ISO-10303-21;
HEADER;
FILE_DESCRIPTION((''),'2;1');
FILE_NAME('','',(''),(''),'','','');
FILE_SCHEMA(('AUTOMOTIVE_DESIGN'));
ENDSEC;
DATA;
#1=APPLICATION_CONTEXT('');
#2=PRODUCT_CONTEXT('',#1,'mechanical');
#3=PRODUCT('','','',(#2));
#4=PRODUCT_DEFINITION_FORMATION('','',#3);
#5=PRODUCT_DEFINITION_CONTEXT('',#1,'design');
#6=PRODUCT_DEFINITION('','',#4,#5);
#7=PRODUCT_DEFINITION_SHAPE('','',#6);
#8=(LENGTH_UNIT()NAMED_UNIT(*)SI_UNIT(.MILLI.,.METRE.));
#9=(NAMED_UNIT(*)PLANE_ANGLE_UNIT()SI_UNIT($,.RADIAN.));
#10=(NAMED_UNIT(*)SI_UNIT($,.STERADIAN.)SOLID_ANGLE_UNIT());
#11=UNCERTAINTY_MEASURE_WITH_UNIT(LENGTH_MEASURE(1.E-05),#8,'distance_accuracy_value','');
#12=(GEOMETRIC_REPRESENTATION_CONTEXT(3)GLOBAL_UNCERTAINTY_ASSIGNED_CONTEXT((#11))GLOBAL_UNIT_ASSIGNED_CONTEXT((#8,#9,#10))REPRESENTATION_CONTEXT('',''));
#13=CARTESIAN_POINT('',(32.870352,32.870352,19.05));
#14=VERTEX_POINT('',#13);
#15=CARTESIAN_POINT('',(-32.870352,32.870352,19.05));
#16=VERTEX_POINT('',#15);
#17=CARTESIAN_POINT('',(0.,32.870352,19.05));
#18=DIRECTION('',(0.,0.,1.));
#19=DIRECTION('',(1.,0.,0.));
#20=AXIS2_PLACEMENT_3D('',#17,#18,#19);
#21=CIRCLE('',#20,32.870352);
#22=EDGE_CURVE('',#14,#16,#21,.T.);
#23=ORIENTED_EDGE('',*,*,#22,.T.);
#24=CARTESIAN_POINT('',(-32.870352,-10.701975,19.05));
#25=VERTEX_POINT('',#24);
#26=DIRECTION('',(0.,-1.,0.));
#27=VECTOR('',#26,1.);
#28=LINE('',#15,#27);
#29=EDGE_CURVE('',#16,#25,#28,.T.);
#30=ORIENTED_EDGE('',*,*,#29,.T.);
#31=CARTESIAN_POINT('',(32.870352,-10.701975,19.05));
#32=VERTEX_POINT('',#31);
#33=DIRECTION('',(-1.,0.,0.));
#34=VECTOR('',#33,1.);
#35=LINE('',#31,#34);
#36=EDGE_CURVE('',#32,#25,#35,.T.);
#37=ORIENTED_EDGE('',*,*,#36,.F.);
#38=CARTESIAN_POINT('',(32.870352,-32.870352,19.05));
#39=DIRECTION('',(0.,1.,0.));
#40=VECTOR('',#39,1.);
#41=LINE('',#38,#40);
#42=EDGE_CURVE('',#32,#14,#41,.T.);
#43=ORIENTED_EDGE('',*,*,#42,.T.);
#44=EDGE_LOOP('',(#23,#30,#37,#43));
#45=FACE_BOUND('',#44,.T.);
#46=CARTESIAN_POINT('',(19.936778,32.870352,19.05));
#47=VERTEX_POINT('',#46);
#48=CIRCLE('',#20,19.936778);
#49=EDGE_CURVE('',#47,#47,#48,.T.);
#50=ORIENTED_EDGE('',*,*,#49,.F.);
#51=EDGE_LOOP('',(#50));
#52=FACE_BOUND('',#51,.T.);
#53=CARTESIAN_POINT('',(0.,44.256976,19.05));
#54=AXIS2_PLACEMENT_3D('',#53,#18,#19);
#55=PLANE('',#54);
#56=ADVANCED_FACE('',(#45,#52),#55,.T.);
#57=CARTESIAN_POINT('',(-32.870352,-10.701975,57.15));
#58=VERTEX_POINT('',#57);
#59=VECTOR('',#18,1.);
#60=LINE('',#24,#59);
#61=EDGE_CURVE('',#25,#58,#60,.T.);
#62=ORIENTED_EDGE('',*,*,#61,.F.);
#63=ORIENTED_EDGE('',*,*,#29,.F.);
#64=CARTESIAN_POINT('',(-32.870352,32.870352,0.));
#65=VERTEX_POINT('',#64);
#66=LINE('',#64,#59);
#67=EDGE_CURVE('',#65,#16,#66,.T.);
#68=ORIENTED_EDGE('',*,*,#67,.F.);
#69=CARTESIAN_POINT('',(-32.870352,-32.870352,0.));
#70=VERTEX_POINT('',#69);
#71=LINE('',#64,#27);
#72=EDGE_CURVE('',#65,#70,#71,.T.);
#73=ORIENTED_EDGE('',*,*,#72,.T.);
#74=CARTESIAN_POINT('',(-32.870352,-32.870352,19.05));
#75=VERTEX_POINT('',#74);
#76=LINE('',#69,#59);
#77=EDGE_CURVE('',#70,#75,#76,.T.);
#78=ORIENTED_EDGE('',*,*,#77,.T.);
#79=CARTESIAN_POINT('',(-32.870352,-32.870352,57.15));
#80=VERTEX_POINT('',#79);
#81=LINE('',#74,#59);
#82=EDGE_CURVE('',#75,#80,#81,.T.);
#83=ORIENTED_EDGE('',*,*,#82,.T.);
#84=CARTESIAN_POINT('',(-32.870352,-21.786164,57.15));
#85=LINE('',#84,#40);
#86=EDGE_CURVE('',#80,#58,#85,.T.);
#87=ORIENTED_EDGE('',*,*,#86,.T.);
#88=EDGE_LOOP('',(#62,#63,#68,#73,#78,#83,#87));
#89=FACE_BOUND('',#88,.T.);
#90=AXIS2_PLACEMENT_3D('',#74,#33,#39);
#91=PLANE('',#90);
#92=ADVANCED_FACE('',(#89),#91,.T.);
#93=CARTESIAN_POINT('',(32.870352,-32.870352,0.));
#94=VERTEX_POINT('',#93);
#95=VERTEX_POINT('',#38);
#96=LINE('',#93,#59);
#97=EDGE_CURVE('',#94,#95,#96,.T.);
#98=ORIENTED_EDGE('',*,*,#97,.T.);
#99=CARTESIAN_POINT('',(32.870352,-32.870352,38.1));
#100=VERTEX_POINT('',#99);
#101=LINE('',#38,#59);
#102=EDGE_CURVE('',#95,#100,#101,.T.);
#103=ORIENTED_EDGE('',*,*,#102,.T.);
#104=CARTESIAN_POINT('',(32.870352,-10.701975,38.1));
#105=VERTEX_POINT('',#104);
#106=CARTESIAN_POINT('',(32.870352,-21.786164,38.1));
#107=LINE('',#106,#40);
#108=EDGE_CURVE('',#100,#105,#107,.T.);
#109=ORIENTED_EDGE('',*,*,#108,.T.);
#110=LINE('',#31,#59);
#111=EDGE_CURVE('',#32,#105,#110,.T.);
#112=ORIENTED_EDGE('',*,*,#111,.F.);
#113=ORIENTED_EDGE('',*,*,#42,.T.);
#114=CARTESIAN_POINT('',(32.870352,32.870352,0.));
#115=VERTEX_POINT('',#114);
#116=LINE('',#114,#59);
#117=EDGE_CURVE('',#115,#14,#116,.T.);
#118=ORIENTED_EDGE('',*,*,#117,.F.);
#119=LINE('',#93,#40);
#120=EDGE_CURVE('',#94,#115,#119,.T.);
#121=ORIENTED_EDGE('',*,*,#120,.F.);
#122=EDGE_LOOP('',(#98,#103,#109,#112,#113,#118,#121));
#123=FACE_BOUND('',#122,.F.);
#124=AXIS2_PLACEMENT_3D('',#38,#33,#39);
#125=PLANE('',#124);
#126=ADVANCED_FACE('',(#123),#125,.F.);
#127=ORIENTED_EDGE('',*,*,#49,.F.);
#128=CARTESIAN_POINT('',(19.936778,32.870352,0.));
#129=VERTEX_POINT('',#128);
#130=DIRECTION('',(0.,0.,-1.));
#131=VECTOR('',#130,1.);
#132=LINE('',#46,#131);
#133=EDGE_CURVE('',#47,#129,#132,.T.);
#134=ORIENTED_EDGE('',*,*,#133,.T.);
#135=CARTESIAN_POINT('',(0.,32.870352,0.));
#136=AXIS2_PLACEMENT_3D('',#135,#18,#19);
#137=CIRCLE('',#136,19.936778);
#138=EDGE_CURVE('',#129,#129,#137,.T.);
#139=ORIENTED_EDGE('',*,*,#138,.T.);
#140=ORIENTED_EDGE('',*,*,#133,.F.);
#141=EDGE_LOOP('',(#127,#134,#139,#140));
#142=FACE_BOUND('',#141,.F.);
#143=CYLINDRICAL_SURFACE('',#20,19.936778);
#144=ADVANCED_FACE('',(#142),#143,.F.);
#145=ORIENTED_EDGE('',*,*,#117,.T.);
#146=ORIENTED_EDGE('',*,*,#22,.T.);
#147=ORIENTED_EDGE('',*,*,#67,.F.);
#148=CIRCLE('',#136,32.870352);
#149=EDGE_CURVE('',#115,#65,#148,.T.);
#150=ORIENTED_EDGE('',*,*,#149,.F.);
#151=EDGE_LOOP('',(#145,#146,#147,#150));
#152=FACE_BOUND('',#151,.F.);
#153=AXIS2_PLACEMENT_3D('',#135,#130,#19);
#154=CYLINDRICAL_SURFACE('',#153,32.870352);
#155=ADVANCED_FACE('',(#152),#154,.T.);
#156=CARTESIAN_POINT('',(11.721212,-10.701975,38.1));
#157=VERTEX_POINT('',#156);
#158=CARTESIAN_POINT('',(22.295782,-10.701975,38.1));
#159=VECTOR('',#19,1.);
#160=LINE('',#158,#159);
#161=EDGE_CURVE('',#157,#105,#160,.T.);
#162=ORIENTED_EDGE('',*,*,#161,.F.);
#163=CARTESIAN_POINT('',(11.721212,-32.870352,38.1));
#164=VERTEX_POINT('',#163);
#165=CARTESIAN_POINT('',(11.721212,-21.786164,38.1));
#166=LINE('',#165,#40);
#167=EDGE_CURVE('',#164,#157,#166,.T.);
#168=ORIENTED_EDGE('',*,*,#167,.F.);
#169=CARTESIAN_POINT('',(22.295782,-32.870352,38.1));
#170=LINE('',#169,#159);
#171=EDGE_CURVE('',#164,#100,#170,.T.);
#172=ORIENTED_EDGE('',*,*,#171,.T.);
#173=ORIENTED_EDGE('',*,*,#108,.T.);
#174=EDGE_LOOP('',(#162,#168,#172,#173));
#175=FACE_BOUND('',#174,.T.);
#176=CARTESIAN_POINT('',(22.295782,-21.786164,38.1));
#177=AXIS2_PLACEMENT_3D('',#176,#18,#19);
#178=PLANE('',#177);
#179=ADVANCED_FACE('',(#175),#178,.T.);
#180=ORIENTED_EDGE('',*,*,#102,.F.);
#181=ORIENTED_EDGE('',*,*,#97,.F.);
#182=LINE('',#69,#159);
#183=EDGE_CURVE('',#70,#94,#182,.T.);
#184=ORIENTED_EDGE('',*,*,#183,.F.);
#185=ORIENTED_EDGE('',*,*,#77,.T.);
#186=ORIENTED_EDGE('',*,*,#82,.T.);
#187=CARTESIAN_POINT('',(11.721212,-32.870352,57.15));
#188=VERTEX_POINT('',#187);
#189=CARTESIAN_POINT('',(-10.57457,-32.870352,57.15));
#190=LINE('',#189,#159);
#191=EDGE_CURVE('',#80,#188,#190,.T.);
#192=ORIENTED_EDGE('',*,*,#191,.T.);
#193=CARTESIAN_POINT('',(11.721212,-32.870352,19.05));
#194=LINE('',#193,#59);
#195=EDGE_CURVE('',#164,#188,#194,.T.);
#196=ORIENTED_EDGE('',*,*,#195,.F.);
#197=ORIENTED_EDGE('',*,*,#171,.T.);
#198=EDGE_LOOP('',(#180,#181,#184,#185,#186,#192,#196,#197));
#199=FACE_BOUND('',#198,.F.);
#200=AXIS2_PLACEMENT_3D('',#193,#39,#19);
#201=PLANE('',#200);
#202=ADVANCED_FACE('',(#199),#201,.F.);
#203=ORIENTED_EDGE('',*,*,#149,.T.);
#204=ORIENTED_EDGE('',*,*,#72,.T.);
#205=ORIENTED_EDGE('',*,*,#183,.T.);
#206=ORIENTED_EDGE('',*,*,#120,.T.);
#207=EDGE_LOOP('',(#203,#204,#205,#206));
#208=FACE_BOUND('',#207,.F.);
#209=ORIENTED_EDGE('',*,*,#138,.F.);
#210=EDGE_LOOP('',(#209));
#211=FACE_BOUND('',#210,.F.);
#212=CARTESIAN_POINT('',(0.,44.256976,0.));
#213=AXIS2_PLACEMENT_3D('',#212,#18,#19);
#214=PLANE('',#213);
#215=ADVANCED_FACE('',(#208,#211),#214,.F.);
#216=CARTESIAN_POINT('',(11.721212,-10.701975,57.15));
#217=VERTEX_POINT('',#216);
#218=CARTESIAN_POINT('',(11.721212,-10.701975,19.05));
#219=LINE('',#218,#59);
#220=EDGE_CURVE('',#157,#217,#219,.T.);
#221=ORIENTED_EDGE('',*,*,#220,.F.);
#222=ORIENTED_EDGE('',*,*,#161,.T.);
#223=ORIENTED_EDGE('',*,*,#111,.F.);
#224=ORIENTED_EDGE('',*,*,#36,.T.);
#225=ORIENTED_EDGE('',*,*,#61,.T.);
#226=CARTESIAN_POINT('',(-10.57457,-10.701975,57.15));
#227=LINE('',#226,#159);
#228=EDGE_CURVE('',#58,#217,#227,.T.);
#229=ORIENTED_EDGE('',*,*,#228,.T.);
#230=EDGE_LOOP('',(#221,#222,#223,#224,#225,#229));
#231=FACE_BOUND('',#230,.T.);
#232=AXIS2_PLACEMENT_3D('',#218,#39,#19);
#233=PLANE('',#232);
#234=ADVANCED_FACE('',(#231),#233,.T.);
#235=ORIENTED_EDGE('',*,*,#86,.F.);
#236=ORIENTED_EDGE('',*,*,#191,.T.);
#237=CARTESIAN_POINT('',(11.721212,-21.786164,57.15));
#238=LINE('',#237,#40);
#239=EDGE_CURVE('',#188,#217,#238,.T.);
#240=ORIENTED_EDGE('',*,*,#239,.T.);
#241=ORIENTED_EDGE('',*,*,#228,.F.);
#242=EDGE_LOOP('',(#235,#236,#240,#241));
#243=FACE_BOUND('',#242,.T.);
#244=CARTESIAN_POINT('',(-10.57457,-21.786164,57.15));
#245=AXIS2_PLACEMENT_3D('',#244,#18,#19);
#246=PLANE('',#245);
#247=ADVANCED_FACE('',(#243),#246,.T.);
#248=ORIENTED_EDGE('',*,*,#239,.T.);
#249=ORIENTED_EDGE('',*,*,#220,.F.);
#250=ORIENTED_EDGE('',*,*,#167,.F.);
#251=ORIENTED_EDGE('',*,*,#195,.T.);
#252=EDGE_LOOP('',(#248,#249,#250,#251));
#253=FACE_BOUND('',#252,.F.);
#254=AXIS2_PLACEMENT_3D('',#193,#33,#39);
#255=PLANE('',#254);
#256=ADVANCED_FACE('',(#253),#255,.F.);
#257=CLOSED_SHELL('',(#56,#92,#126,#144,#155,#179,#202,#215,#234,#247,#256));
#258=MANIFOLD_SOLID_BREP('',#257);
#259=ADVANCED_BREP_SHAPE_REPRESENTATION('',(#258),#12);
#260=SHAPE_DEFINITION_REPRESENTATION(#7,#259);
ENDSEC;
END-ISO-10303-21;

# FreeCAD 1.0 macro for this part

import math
import FreeCAD as App
import Part
import Sketcher
Q = App.Units.Quantity

doc = App.newDocument("Part")
body = doc.addObject("PartDesign::Body", "Body")

# Sketch on XY plane
sketch1 = body.newObject("Sketcher::SketchObject", "Sketch")
sketch1.AttachmentSupport = (doc.getObject("XY_Plane"), [""])
sketch1.MapMode = "FlatFace"
sketch1.addGeometry([
    Part.ArcOfCircle(Part.Circle(App.Vector(0, 33, 0), App.Vector(0, 0, 1), 33), math.radians(0), math.radians(180)),
    Part.LineSegment(App.Vector(-33, 33, 0), App.Vector(-33, -33, 0)),
    Part.LineSegment(App.Vector(-33, -33, 0), App.Vector(33, -33, 0)),
    Part.LineSegment(App.Vector(33, -33, 0), App.Vector(33, 33, 0)),
], False)
sketch1.addConstraint([
    Sketcher.Constraint("Tangent", 0, 2, 1, 1),
    Sketcher.Constraint("Coincident", 1, 2, 2, 1),
    Sketcher.Constraint("Coincident", 2, 2, 3, 1),
    Sketcher.Constraint("Tangent", 3, 2, 0, 1),
    Sketcher.Constraint("Vertical", 1),
    Sketcher.Constraint("Horizontal", 2),
    Sketcher.Constraint("Vertical", 3),
    Sketcher.Constraint("Symmetric", 0, 2, 2, 2, -1, 1),
    Sketcher.Constraint("Equal", 2, 1),
    Sketcher.Constraint("Radius", 0, Q("32.870352 mm")),
])
pad1 = body.newObject("PartDesign::Pad", "Pad")
pad1.Profile = sketch1
pad1.Length = Q("0.75 in")

# Sketch on XY plane
sketch2 = body.newObject("Sketcher::SketchObject", "Sketch001")
sketch2.AttachmentSupport = (doc.getObject("XY_Plane"), [""])
sketch2.MapMode = "FlatFace"
sketch2.AttachmentOffset = App.Placement(App.Vector(0, 0, 0.75 * 25.4), App.Rotation())
sketch2.addGeometry([
    Part.LineSegment(App.Vector(-33, -11, 0), App.Vector(-33, -33, 0)),
    Part.LineSegment(App.Vector(-33, -33, 0), App.Vector(12, -33, 0)),
    Part.LineSegment(App.Vector(12, -33, 0), App.Vector(12, -11, 0)),
    Part.LineSegment(App.Vector(12, -11, 0), App.Vector(-33, -11, 0)),
], False)
sketch2.addConstraint([
    Sketcher.Constraint("Coincident", 0, 2, 1, 1),
    Sketcher.Constraint("Coincident", 1, 2, 2, 1),
    Sketcher.Constraint("Coincident", 2, 2, 3, 1),
    Sketcher.Constraint("Coincident", 3, 2, 0, 1),
    Sketcher.Constraint("Vertical", 0),
    Sketcher.Constraint("Horizontal", 1),
    Sketcher.Constraint("Vertical", 2),
    Sketcher.Constraint("Horizontal", 3),
    Sketcher.Constraint("DistanceX", 1, 1, 1, 2, Q("44.591565 mm")),
    Sketcher.Constraint("DistanceY", 0, 2, 0, 1, Q("22.168377 mm")),
    Sketcher.Constraint("DistanceX", 0, 2, -1, 1, Q("32.870352 mm")),
    Sketcher.Constraint("DistanceY", 0, 2, -1, 1, Q("32.870352 mm")),
])
pad2 = body.newObject("PartDesign::Pad", "Pad001")
pad2.Profile = sketch2
pad2.Length = Q("1.5 in")

# Sketch on XY plane
sketch3 = body.newObject("Sketcher::SketchObject", "Sketch002")
sketch3.AttachmentSupport = (doc.getObject("XY_Plane"), [""])
sketch3.MapMode = "FlatFace"
sketch3.AttachmentOffset = App.Placement(App.Vector(0, 0, 0.75 * 25.4), App.Rotation())
sketch3.addGeometry([
    Part.LineSegment(App.Vector(12, -11, 0), App.Vector(12, -33, 0)),
    Part.LineSegment(App.Vector(12, -33, 0), App.Vector(33, -33, 0)),
    Part.LineSegment(App.Vector(33, -33, 0), App.Vector(33, -11, 0)),
    Part.LineSegment(App.Vector(33, -11, 0), App.Vector(12, -11, 0)),
], False)
sketch3.addConstraint([
    Sketcher.Constraint("Coincident", 0, 2, 1, 1),
    Sketcher.Constraint("Coincident", 1, 2, 2, 1),
    Sketcher.Constraint("Coincident", 2, 2, 3, 1),
    Sketcher.Constraint("Coincident", 3, 2, 0, 1),
    Sketcher.Constraint("Vertical", 0),
    Sketcher.Constraint("Horizontal", 1),
    Sketcher.Constraint("Vertical", 2),
    Sketcher.Constraint("Horizontal", 3),
    Sketcher.Constraint("DistanceX", 1, 1, 1, 2, Q("21.14914 mm")),
    Sketcher.Constraint("DistanceY", 0, 2, 0, 1, Q("22.168377 mm")),
    Sketcher.Constraint("DistanceX", -1, 1, 0, 2, Q("11.721212 mm")),
    Sketcher.Constraint("DistanceY", 0, 2, -1, 1, Q("32.870352 mm")),
])
pad3 = body.newObject("PartDesign::Pad", "Pad002")
pad3.Profile = sketch3
pad3.Length = Q("0.75 in")

# Sketch on XY plane
sketch4 = body.newObject("Sketcher::SketchObject", "Sketch003")
sketch4.AttachmentSupport = (doc.getObject("XY_Plane"), [""])
sketch4.MapMode = "FlatFace"
sketch4.AttachmentOffset = App.Placement(App.Vector(0, 0, 0.75 * 25.4), App.Rotation())
sketch4.addGeometry(Part.Circle(App.Vector(0, 33, 0), App.Vector(0, 0, 1), 20), False)
sketch4.addConstraint([
    Sketcher.Constraint("PointOnObject", 0, 3, -2),
    Sketcher.Constraint("Diameter", 0, Q("39.873556 mm")),
    Sketcher.Constraint("DistanceY", -1, 1, 0, 3, Q("32.870352 mm")),
])
pocket1 = body.newObject("PartDesign::Pocket", "Pocket")
pocket1.Profile = sketch4
pocket1.Length = Q("1 in")

doc.recompute()
